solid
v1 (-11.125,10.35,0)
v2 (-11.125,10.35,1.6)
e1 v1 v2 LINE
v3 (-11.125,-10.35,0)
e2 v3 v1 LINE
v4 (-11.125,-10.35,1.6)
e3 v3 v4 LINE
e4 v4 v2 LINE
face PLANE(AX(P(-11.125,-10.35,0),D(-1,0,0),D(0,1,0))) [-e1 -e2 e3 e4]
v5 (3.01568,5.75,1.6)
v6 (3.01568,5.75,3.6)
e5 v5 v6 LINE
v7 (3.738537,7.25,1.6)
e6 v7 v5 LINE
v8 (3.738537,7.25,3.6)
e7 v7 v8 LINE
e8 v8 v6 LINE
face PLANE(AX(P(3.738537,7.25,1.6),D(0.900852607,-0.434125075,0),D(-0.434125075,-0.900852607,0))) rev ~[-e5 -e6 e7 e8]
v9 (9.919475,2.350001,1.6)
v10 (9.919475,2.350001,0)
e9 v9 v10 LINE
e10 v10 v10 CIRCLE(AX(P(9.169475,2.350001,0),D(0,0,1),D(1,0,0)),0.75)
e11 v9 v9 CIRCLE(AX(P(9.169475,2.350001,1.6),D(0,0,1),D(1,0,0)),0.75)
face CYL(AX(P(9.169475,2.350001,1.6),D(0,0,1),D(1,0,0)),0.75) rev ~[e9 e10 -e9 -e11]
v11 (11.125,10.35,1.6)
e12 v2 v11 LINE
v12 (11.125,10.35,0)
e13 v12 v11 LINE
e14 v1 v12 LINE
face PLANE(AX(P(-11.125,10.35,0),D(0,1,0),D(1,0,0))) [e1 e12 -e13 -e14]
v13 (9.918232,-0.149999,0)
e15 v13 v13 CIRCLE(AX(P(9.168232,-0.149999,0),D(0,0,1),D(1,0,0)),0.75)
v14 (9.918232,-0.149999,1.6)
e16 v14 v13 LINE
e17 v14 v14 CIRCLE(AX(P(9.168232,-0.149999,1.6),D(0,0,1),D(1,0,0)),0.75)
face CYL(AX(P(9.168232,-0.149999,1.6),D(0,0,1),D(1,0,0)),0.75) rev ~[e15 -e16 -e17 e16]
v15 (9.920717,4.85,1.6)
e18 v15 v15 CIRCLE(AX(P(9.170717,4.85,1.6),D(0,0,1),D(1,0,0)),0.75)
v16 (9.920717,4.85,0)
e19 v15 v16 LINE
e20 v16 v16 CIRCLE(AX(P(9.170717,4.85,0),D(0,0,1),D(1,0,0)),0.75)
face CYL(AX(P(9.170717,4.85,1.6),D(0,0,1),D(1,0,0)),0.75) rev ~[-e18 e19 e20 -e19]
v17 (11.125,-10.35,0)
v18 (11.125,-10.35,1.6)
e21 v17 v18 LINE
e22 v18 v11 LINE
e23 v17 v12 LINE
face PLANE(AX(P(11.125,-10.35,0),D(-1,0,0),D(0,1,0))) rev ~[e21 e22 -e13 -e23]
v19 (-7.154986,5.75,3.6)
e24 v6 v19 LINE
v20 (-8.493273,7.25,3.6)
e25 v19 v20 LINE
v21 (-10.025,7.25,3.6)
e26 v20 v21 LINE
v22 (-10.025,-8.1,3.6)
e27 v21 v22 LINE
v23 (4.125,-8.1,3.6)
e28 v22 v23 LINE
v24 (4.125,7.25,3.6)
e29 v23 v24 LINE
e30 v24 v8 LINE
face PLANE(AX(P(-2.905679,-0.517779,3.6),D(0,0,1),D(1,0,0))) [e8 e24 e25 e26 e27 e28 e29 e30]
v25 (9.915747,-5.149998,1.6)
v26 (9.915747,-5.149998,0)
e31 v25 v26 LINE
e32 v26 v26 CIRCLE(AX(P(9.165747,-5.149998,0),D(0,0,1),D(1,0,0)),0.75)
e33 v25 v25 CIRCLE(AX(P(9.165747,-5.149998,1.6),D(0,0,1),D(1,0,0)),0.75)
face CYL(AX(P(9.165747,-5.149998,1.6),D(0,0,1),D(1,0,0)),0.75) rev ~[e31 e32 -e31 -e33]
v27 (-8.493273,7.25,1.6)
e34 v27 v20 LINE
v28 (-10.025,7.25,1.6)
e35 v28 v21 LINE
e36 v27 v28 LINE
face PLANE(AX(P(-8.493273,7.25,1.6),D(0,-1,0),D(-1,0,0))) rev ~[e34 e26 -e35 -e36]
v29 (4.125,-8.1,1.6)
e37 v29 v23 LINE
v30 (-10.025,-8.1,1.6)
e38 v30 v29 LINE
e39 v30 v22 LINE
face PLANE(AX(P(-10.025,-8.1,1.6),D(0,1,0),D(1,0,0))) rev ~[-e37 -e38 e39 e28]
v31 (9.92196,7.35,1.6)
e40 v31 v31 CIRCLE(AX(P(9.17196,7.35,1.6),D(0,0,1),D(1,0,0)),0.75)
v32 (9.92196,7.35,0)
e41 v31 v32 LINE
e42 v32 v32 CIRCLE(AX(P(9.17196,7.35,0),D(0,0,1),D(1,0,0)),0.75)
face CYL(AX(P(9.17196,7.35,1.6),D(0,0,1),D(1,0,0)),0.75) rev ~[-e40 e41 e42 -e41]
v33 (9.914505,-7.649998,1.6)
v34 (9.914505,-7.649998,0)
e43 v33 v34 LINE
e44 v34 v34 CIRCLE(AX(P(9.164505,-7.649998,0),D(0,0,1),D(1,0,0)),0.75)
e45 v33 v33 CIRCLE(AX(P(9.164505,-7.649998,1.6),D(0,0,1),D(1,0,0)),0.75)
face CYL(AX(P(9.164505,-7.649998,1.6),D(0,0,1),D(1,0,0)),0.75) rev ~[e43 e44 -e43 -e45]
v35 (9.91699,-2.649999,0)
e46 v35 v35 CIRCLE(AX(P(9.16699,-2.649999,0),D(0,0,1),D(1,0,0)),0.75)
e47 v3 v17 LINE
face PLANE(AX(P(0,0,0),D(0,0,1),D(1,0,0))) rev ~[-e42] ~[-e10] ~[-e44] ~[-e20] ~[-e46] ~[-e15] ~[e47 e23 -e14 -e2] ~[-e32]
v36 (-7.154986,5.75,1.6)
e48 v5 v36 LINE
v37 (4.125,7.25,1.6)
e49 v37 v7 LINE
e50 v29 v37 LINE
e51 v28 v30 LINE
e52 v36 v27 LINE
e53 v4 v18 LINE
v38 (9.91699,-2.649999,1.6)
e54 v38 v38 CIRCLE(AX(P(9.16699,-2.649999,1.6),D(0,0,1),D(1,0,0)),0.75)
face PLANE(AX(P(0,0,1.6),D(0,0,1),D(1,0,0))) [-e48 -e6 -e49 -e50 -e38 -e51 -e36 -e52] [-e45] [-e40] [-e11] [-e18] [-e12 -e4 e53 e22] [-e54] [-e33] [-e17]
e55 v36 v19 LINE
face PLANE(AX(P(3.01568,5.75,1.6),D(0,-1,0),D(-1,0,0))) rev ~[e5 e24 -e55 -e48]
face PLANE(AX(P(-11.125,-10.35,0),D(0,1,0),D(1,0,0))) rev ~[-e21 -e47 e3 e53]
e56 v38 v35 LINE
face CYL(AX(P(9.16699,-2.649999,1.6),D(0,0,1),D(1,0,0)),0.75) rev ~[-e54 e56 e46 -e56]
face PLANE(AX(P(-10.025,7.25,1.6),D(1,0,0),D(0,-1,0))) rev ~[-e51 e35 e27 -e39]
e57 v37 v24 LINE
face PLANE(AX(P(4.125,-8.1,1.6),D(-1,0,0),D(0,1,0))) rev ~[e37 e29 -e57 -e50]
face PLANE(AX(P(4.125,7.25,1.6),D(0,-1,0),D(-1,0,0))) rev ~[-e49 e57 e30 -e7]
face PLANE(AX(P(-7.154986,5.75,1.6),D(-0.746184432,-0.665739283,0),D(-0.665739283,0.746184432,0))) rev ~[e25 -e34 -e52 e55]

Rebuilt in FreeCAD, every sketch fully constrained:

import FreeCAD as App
import Part
import Sketcher


def add_polygon(sketch, points):
    """Adds a closed chain of lines whose ends are joined by coincident constraints."""
    first, n = sketch.GeometryCount, len(points)
    for a, b in zip(points, points[1:] + points[:1]):
        sketch.addGeometry(Part.LineSegment(App.Vector(*a, 0), App.Vector(*b, 0)), False)
    for i in range(n):
        sketch.addConstraint(Sketcher.Constraint("Coincident", first + i, 2, first + (i + 1) % n, 1))

doc = App.newDocument("Part")
body = doc.addObject("PartDesign::Body", "Body")

sketch1 = doc.addObject("Sketcher::SketchObject", "Sketch")
body.addObject(sketch1)
sketch1.AttachmentSupport = (doc.XY_Plane, [""])
sketch1.MapMode = "FlatFace"
add_polygon(sketch1, [(-11, 10), (-11, -10), (11, -10), (11, 10)])
sketch1.addConstraint([
    Sketcher.Constraint("Vertical", 0),
    Sketcher.Constraint("Horizontal", 1),
    Sketcher.Constraint("Vertical", 2),
    Sketcher.Constraint("Horizontal", 3),
    Sketcher.Constraint("Symmetric", 0, 2, 2, 2, -1, 1),
    Sketcher.Constraint("DistanceY", 0, 2, 0, 1, 20.7),
    Sketcher.Constraint("DistanceX", 1, 1, 1, 2, 22.25),
])
pad1 = doc.addObject("PartDesign::Pad", "Pad")
body.addObject(pad1)
pad1.Profile = sketch1
pad1.Length = 1.6

sketch2 = doc.addObject("Sketcher::SketchObject", "Sketch001")
body.addObject(sketch2)
sketch2.AttachmentSupport = (doc.XY_Plane, [""])
sketch2.MapMode = "FlatFace"
sketch2.AttachmentOffset = App.Placement(App.Vector(0, 0, 1.6), App.Rotation())
add_polygon(sketch2, [(-8.49, 7.25), (-10.03, 7.25), (-10.03, -8.1), (4.12, -8.1), (4.12, 7.25), (3.74, 7.25), (3.02, 5.75), (-7.15, 5.75)])
sketch2.addConstraint([
    Sketcher.Constraint("Horizontal", 0),
    Sketcher.Constraint("Vertical", 1),
    Sketcher.Constraint("Horizontal", 2),
    Sketcher.Constraint("Vertical", 3),
    Sketcher.Constraint("Horizontal", 4),
    Sketcher.Constraint("Horizontal", 6),
    Sketcher.Constraint("Horizontal", 0, 2, 3, 2),
    Sketcher.Constraint("DistanceX", 2, 1, 2, 2, 14.15),
    Sketcher.Constraint("DistanceY", 1, 2, 1, 1, 15.35),
    Sketcher.Constraint("DistanceY", 1, 2, -1, 1, 8.1),
    Sketcher.Constraint("DistanceY", 5, 2, 4, 2, 1.5),
    Sketcher.Constraint("DistanceX", 0, 2, -1, 1, 10.025),
    Sketcher.Constraint("Distance", 5, 1.665089),
    Sketcher.Constraint("DistanceX", 0, 2, 0, 1, 1.531727),
    Sketcher.Constraint("DistanceX", 4, 2, 4, 1, 0.386463),
    Sketcher.Constraint("DistanceX", 6, 2, 6, 1, 10.170666),
])
pad2 = doc.addObject("PartDesign::Pad", "Pad001")
body.addObject(pad2)
pad2.Profile = sketch2
pad2.Length = 2

sketch3 = doc.addObject("Sketcher::SketchObject", "Sketch002")
body.addObject(sketch3)
sketch3.AttachmentSupport = (doc.XY_Plane, [""])
sketch3.MapMode = "FlatFace"
sketch3.AttachmentOffset = App.Placement(App.Vector(0, 0, 1.6), App.Rotation())
sketch3.addGeometry([
    Part.Circle(App.Vector(9.2, 7.3, 0), App.Vector(0, 0, 1), 0.8),
    Part.Circle(App.Vector(9.2, 4.8, 0), App.Vector(0, 0, 1), 0.8),
    Part.Circle(App.Vector(9.2, 2.4, 0), App.Vector(0, 0, 1), 0.8),
    Part.Circle(App.Vector(9.2, -0.1, 0), App.Vector(0, 0, 1), 0.8),
    Part.Circle(App.Vector(9.2, -2.6, 0), App.Vector(0, 0, 1), 0.8),
    Part.Circle(App.Vector(9.2, -5.1, 0), App.Vector(0, 0, 1), 0.8),
    Part.Circle(App.Vector(9.2, -7.6, 0), App.Vector(0, 0, 1), 0.8),
], False)
sketch3.addConstraint([
    Sketcher.Constraint("Equal", 0, 1),
    Sketcher.Constraint("Equal", 1, 2),
    Sketcher.Constraint("Equal", 2, 3),
    Sketcher.Constraint("Equal", 3, 4),
    Sketcher.Constraint("Equal", 4, 5),
    Sketcher.Constraint("Equal", 5, 6),
    Sketcher.Constraint("Diameter", 0, 1.5),
    Sketcher.Constraint("DistanceY", 2, 3, 0, 3, 4.999999),
    Sketcher.Constraint("DistanceY", 3, 3, 1, 3, 4.999999),
    Sketcher.Constraint("DistanceY", 4, 3, 2, 3, 5.0),
    Sketcher.Constraint("DistanceY", 5, 3, 3, 3, 4.999999),
    Sketcher.Constraint("DistanceY", 6, 3, 4, 3, 4.999999),
    Sketcher.Constraint("DistanceY", 1, 3, 0, 3, 2.5),
    Sketcher.Constraint("DistanceY", -1, 1, 0, 3, 7.35),
    Sketcher.Constraint("DistanceX", -1, 1, 0, 3, 9.17196),
    Sketcher.Constraint("DistanceX", -1, 1, 4, 3, 9.16699),
    Sketcher.Constraint("DistanceX", 2, 3, 1, 3, 0.001242),
    Sketcher.Constraint("DistanceX", 3, 3, 0, 3, 0.003728),
    Sketcher.Constraint("DistanceX", 5, 3, 2, 3, 0.003728),
    Sketcher.Constraint("DistanceX", 6, 3, 5, 3, 0.001242),
    Sketcher.Constraint("DistanceX", -1, 1, 1, 3, 9.170717),
])
pocket1 = doc.addObject("PartDesign::Pocket", "Pocket")
body.addObject(pocket1)
pocket1.Profile = sketch3
pocket1.Length = 25

doc.recompute()
